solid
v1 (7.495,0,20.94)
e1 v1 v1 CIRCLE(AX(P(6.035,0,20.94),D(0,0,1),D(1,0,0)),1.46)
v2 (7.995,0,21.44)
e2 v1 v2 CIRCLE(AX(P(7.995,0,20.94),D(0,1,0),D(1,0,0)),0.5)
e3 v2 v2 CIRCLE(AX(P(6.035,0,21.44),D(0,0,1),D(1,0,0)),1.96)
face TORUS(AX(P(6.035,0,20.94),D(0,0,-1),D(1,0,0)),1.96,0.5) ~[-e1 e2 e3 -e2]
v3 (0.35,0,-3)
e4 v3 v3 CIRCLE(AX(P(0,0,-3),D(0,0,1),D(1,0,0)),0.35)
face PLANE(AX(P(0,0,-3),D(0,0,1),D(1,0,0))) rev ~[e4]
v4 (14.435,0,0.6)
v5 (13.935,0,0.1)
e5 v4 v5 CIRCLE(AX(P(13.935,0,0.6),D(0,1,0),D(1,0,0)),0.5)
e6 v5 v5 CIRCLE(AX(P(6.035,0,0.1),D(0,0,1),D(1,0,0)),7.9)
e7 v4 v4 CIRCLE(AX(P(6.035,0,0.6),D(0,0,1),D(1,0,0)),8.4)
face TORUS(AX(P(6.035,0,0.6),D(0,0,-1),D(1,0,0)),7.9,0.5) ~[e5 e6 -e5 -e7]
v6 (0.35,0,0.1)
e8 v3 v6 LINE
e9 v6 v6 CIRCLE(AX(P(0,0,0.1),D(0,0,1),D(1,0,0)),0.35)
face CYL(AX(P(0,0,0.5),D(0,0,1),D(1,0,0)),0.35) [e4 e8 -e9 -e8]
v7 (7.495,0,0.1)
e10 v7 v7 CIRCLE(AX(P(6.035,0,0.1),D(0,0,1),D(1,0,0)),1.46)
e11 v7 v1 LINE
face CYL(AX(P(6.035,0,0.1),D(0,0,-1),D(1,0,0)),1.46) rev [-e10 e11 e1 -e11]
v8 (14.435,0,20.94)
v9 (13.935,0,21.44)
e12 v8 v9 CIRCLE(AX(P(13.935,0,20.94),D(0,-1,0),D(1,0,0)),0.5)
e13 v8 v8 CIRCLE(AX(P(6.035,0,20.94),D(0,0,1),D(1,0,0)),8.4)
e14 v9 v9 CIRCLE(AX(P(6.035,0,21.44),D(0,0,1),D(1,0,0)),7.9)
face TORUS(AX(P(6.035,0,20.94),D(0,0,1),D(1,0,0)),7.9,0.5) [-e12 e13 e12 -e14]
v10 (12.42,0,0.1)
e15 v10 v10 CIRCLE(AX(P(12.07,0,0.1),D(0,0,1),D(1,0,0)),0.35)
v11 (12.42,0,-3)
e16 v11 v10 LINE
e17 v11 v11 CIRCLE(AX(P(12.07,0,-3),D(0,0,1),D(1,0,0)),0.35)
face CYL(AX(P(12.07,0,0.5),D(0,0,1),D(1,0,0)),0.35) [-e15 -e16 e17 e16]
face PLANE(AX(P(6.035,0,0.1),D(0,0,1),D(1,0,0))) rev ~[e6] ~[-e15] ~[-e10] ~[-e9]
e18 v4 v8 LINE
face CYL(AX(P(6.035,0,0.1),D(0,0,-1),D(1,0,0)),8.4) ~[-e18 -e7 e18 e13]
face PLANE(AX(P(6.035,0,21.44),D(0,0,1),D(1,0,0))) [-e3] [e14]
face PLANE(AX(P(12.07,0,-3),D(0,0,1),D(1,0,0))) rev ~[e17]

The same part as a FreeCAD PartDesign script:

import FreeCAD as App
import Part
import Sketcher
Q = App.Units.Quantity


def edges_at(feature, points):
    """Names of the edges that pass closest to the given points."""
    edges = feature.Shape.Edges
    near = lambda p: min(range(len(edges)), key=lambda i: edges[i].distToShape(Part.Vertex(*p))[0])
    return sorted({f"Edge{near(p) + 1}" for p in points})

doc = App.newDocument("Part")
body = doc.addObject("PartDesign::Body", "Body")

# Sketch on XY plane
sketch1 = body.newObject("Sketcher::SketchObject", "Sketch")
sketch1.AttachmentSupport = (doc.getObject("XY_Plane"), [""])
sketch1.MapMode = "FlatFace"
sketch1.AttachmentOffset = App.Placement(App.Vector(0, 0, 0.1), App.Rotation())
sketch1.addGeometry([
    Part.Circle(App.Vector(6, 0, 0), App.Vector(0, 0, 1), 8.4),
    Part.Circle(App.Vector(6, 0, 0), App.Vector(0, 0, 1), 1.5),
], False)
sketch1.addConstraint([
    Sketcher.Constraint("Coincident", 1, 3, 0, 3),
    Sketcher.Constraint("PointOnObject", 0, 3, -1),
    Sketcher.Constraint("Diameter", 0, Q("16.8 mm")),
    Sketcher.Constraint("Diameter", 1, Q("2.92 mm")),
    Sketcher.Constraint("DistanceX", -1, 1, 0, 3, Q("6.035 mm")),
])
pad1 = body.newObject("PartDesign::Pad", "Pad")
pad1.Profile = sketch1
pad1.Length = 21.34
doc.recompute()

fillet = body.newObject("PartDesign::Fillet", "Fillet")
fillet.Base = (pad1, edges_at(pad1, [(4.575, 0, 21.44), (-2.365, 0, 21.44), (-2.365, 0, 0.1)]))
fillet.Radius = 0.5
body2 = doc.addObject("PartDesign::Body", "Body001")
body2.AllowCompound = True

# Sketch on XY plane
sketch2 = body2.newObject("Sketcher::SketchObject", "Sketch001")
sketch2.AttachmentSupport = (doc.getObject("XY_Plane001"), [""])
sketch2.MapMode = "FlatFace"
sketch2.AttachmentOffset = App.Placement(App.Vector(0, 0, 0.5), App.Rotation())
sketch2.addGeometry([
    Part.Circle(App.Vector(0, 0, 0), App.Vector(0, 0, 1), 0.35),
    Part.Circle(App.Vector(12.07, 0, 0), App.Vector(0, 0, 1), 0.35),
], False)
sketch2.addConstraint([
    Sketcher.Constraint("Coincident", 0, 3, -1, 1),
    Sketcher.Constraint("Equal", 0, 1),
    Sketcher.Constraint("PointOnObject", 1, 3, -1),
    Sketcher.Constraint("Diameter", 0, Q("0.7 mm")),
    Sketcher.Constraint("DistanceX", -1, 1, 1, 3, Q("12.07 mm")),
])
pad2 = body2.newObject("PartDesign::Pad", "Pad001")
pad2.Profile = sketch2
pad2.Type = "TwoLengths"
pad2.Length = 10.67
pad2.Length2 = 3.5
doc.recompute()

boolean = body2.newObject("PartDesign::Boolean", "Boolean")
boolean.Type = "Fuse"
boolean.addObjects([body])

doc.recompute()
